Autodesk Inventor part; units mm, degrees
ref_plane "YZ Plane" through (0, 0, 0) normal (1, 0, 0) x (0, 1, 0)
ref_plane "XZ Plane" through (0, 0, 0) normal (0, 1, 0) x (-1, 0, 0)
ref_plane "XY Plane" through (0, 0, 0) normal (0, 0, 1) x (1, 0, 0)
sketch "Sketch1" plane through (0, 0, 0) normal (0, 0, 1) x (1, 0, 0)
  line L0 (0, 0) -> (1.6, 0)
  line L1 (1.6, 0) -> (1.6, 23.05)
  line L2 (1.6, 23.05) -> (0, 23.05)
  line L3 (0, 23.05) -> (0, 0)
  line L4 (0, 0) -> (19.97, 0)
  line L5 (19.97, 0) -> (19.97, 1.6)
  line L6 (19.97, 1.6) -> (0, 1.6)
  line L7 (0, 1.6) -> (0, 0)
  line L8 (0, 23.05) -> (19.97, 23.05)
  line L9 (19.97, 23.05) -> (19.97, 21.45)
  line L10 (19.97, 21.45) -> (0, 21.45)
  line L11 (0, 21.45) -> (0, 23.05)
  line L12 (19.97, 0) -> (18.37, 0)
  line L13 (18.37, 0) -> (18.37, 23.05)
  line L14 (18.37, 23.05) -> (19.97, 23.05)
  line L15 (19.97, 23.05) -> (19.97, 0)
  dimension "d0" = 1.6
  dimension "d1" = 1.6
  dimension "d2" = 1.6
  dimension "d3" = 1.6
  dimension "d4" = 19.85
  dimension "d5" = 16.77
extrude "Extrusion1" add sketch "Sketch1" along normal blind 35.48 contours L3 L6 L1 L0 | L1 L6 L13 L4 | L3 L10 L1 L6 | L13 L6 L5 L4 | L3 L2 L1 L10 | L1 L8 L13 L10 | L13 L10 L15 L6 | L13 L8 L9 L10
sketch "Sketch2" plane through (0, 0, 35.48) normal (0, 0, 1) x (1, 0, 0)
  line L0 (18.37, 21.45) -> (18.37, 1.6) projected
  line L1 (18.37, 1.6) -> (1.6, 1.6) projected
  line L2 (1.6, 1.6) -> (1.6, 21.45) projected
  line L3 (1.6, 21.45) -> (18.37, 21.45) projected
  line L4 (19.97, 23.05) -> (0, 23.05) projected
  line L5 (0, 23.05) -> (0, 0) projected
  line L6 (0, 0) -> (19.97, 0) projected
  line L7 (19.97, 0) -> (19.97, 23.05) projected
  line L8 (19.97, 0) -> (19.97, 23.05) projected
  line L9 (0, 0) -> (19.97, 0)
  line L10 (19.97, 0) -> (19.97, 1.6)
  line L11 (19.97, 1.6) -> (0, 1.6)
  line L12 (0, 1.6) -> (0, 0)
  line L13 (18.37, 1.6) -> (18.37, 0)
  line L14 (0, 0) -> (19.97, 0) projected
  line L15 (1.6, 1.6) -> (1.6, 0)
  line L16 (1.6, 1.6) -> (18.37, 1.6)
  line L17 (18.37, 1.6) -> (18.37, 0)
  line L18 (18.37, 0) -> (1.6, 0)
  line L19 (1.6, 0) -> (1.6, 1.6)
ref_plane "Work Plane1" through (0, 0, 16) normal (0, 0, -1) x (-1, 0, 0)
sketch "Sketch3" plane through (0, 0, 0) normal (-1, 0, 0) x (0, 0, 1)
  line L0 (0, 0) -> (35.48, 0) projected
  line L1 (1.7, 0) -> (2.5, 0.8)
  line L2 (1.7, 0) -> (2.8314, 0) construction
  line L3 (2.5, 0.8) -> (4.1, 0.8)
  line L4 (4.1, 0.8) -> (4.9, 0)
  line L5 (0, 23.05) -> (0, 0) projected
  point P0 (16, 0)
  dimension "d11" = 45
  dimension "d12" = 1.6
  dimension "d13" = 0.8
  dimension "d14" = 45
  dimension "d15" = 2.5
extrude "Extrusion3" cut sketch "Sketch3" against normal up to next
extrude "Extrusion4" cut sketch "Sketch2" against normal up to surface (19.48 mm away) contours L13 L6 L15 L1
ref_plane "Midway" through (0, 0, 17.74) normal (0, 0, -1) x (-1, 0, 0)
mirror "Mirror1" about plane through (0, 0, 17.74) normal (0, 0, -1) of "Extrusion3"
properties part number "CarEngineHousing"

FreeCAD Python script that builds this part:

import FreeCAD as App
import Part
import Sketcher
from FreeCAD import Vector

doc = App.newDocument("Part")
body = doc.addObject("PartDesign::Body", "Body")

sketch1 = doc.addObject("Sketcher::SketchObject", "Sketch")
body.addObject(sketch1)
sketch1.AttachmentSupport = (doc.XY_Plane, [""])
sketch1.MapMode = "FlatFace"
sketch1.addGeometry(Part.LineSegment(Vector(0, 0, 0), Vector(20, 0, 0)), False)
sketch1.addGeometry(Part.LineSegment(Vector(20, 0, 0), Vector(20, 23, 0)), False)
sketch1.addGeometry(Part.LineSegment(Vector(20, 23, 0), Vector(0, 23, 0)), False)
sketch1.addGeometry(Part.LineSegment(Vector(0, 23, 0), Vector(0, 0, 0)), False)
sketch1.addGeometry(Part.LineSegment(Vector(2, 2, 0), Vector(2, 21, 0)), False)
sketch1.addGeometry(Part.LineSegment(Vector(2, 21, 0), Vector(18, 21, 0)), False)
sketch1.addGeometry(Part.LineSegment(Vector(18, 21, 0), Vector(18, 2, 0)), False)
sketch1.addGeometry(Part.LineSegment(Vector(18, 2, 0), Vector(2, 2, 0)), False)
sketch1.addConstraint(Sketcher.Constraint("Coincident", 0, 2, 1, 1))
sketch1.addConstraint(Sketcher.Constraint("Coincident", 1, 2, 2, 1))
sketch1.addConstraint(Sketcher.Constraint("Coincident", 2, 2, 3, 1))
sketch1.addConstraint(Sketcher.Constraint("Coincident", 3, 2, 0, 1))
sketch1.addConstraint(Sketcher.Constraint("Coincident", 4, 2, 5, 1))
sketch1.addConstraint(Sketcher.Constraint("Coincident", 5, 2, 6, 1))
sketch1.addConstraint(Sketcher.Constraint("Coincident", 6, 2, 7, 1))
sketch1.addConstraint(Sketcher.Constraint("Coincident", 7, 2, 4, 1))
sketch1.addConstraint(Sketcher.Constraint("Horizontal", 0))
sketch1.addConstraint(Sketcher.Constraint("Vertical", 1))
sketch1.addConstraint(Sketcher.Constraint("Horizontal", 2))
sketch1.addConstraint(Sketcher.Constraint("Vertical", 3))
sketch1.addConstraint(Sketcher.Constraint("Vertical", 4))
sketch1.addConstraint(Sketcher.Constraint("Horizontal", 5))
sketch1.addConstraint(Sketcher.Constraint("Vertical", 6))
sketch1.addConstraint(Sketcher.Constraint("Horizontal", 7))
sketch1.addConstraint(Sketcher.Constraint("Coincident", 3, 2, -1, 1))
sketch1.addConstraint(Sketcher.Constraint("DistanceX", 5, 1, 5, 2, 16.77))
sketch1.addConstraint(Sketcher.Constraint("DistanceY", 4, 1, 4, 2, 19.85))
sketch1.addConstraint(Sketcher.Constraint("DistanceX", -1, 1, 4, 2, 1.6))
sketch1.addConstraint(Sketcher.Constraint("DistanceY", -1, 1, 6, 2, 1.6))
sketch1.addConstraint(Sketcher.Constraint("DistanceY", 4, 2, 2, 2, 1.6))
sketch1.addConstraint(Sketcher.Constraint("DistanceX", 5, 2, 1, 2, 1.6))
pad1 = doc.addObject("PartDesign::Pad", "Pad")
body.addObject(pad1)
pad1.Profile = sketch1
pad1.Length = 35.48

sketch2 = doc.addObject("Sketcher::SketchObject", "Sketch001")
body.addObject(sketch2)
sketch2.AttachmentSupport = (doc.YZ_Plane, [""])
sketch2.MapMode = "FlatFace"
sketch2.addGeometry(Part.LineSegment(Vector(0.8, 2.5, 0), Vector(0, 1.7, 0)), False)
sketch2.addGeometry(Part.LineSegment(Vector(0, 1.7, 0), Vector(0, 4.9, 0)), False)
sketch2.addGeometry(Part.LineSegment(Vector(0, 4.9, 0), Vector(0.8, 4.1, 0)), False)
sketch2.addGeometry(Part.LineSegment(Vector(0.8, 4.1, 0), Vector(0.8, 2.5, 0)), False)
sketch2.addConstraint(Sketcher.Constraint("Coincident", 0, 2, 1, 1))
sketch2.addConstraint(Sketcher.Constraint("Coincident", 1, 2, 2, 1))
sketch2.addConstraint(Sketcher.Constraint("Coincident", 2, 2, 3, 1))
sketch2.addConstraint(Sketcher.Constraint("Coincident", 3, 2, 0, 1))
sketch2.addConstraint(Sketcher.Constraint("Vertical", 1))
sketch2.addConstraint(Sketcher.Constraint("Vertical", 3))
sketch2.addConstraint(Sketcher.Constraint("PointOnObject", 0, 2, -2))
sketch2.addConstraint(Sketcher.Constraint("Perpendicular", 0, 2))
sketch2.addConstraint(Sketcher.Constraint("Equal", 0, 2))
sketch2.addConstraint(Sketcher.Constraint("DistanceY", 3, 2, 3, 1, 1.6))
sketch2.addConstraint(Sketcher.Constraint("DistanceX", -1, 1, 2, 2, 0.8))
sketch2.addConstraint(Sketcher.Constraint("DistanceY", -1, 1, 3, 2, 2.5))
pocket1 = doc.addObject("PartDesign::Pocket", "Pocket")
body.addObject(pocket1)
pocket1.Profile = sketch2
pocket1.Type = "UpToFirst"
pocket1.Reversed = True

sketch3 = doc.addObject("Sketcher::SketchObject", "Sketch002")
body.addObject(sketch3)
sketch3.AttachmentSupport = (doc.XY_Plane, [""])
sketch3.MapMode = "FlatFace"
sketch3.AttachmentOffset = App.Placement(Vector(0, 0, 35.48), App.Rotation())
sketch3.addGeometry(Part.LineSegment(Vector(18.4, 0, 0), Vector(18.4, 1.6, 0)), False)
sketch3.addGeometry(Part.LineSegment(Vector(18.4, 1.6, 0), Vector(1.6, 1.6, 0)), False)
sketch3.addGeometry(Part.LineSegment(Vector(1.6, 1.6, 0), Vector(1.6, 0, 0)), False)
sketch3.addGeometry(Part.LineSegment(Vector(1.6, 0, 0), Vector(18.4, 0, 0)), False)
sketch3.addConstraint(Sketcher.Constraint("Coincident", 0, 2, 1, 1))
sketch3.addConstraint(Sketcher.Constraint("Coincident", 1, 2, 2, 1))
sketch3.addConstraint(Sketcher.Constraint("Coincident", 2, 2, 3, 1))
sketch3.addConstraint(Sketcher.Constraint("Coincident", 3, 2, 0, 1))
sketch3.addConstraint(Sketcher.Constraint("Vertical", 0))
sketch3.addConstraint(Sketcher.Constraint("Horizontal", 1))
sketch3.addConstraint(Sketcher.Constraint("Vertical", 2))
sketch3.addConstraint(Sketcher.Constraint("Horizontal", 3))
sketch3.addConstraint(Sketcher.Constraint("PointOnObject", 2, 2, -1))
sketch3.addConstraint(Sketcher.Constraint("DistanceY", 0, 1, 0, 2, 1.6))
sketch3.addConstraint(Sketcher.Constraint("DistanceX", 1, 2, 1, 1, 16.77))
sketch3.addConstraint(Sketcher.Constraint("DistanceX", -1, 1, 1, 2, 1.6))
pocket2 = doc.addObject("PartDesign::Pocket", "Pocket001")
body.addObject(pocket2)
pocket2.Profile = sketch3
pocket2.Length = 19.48
doc.recompute()

datumplane = doc.addObject("PartDesign::Plane", "DatumPlane")
body.addObject(datumplane)
datumplane.AttachmentSupport = (doc.XY_Plane, [""])
datumplane.MapMode = "FlatFace"
datumplane.AttachmentOffset = App.Placement(Vector(0, 0, 17.74), App.Rotation())
mirrored = doc.addObject("PartDesign::Mirrored", "Mirrored")
body.addObject(mirrored)
mirrored.Originals = [pocket1]
mirrored.MirrorPlane = (datumplane, [""])
body.Tip = mirrored

doc.recompute()
